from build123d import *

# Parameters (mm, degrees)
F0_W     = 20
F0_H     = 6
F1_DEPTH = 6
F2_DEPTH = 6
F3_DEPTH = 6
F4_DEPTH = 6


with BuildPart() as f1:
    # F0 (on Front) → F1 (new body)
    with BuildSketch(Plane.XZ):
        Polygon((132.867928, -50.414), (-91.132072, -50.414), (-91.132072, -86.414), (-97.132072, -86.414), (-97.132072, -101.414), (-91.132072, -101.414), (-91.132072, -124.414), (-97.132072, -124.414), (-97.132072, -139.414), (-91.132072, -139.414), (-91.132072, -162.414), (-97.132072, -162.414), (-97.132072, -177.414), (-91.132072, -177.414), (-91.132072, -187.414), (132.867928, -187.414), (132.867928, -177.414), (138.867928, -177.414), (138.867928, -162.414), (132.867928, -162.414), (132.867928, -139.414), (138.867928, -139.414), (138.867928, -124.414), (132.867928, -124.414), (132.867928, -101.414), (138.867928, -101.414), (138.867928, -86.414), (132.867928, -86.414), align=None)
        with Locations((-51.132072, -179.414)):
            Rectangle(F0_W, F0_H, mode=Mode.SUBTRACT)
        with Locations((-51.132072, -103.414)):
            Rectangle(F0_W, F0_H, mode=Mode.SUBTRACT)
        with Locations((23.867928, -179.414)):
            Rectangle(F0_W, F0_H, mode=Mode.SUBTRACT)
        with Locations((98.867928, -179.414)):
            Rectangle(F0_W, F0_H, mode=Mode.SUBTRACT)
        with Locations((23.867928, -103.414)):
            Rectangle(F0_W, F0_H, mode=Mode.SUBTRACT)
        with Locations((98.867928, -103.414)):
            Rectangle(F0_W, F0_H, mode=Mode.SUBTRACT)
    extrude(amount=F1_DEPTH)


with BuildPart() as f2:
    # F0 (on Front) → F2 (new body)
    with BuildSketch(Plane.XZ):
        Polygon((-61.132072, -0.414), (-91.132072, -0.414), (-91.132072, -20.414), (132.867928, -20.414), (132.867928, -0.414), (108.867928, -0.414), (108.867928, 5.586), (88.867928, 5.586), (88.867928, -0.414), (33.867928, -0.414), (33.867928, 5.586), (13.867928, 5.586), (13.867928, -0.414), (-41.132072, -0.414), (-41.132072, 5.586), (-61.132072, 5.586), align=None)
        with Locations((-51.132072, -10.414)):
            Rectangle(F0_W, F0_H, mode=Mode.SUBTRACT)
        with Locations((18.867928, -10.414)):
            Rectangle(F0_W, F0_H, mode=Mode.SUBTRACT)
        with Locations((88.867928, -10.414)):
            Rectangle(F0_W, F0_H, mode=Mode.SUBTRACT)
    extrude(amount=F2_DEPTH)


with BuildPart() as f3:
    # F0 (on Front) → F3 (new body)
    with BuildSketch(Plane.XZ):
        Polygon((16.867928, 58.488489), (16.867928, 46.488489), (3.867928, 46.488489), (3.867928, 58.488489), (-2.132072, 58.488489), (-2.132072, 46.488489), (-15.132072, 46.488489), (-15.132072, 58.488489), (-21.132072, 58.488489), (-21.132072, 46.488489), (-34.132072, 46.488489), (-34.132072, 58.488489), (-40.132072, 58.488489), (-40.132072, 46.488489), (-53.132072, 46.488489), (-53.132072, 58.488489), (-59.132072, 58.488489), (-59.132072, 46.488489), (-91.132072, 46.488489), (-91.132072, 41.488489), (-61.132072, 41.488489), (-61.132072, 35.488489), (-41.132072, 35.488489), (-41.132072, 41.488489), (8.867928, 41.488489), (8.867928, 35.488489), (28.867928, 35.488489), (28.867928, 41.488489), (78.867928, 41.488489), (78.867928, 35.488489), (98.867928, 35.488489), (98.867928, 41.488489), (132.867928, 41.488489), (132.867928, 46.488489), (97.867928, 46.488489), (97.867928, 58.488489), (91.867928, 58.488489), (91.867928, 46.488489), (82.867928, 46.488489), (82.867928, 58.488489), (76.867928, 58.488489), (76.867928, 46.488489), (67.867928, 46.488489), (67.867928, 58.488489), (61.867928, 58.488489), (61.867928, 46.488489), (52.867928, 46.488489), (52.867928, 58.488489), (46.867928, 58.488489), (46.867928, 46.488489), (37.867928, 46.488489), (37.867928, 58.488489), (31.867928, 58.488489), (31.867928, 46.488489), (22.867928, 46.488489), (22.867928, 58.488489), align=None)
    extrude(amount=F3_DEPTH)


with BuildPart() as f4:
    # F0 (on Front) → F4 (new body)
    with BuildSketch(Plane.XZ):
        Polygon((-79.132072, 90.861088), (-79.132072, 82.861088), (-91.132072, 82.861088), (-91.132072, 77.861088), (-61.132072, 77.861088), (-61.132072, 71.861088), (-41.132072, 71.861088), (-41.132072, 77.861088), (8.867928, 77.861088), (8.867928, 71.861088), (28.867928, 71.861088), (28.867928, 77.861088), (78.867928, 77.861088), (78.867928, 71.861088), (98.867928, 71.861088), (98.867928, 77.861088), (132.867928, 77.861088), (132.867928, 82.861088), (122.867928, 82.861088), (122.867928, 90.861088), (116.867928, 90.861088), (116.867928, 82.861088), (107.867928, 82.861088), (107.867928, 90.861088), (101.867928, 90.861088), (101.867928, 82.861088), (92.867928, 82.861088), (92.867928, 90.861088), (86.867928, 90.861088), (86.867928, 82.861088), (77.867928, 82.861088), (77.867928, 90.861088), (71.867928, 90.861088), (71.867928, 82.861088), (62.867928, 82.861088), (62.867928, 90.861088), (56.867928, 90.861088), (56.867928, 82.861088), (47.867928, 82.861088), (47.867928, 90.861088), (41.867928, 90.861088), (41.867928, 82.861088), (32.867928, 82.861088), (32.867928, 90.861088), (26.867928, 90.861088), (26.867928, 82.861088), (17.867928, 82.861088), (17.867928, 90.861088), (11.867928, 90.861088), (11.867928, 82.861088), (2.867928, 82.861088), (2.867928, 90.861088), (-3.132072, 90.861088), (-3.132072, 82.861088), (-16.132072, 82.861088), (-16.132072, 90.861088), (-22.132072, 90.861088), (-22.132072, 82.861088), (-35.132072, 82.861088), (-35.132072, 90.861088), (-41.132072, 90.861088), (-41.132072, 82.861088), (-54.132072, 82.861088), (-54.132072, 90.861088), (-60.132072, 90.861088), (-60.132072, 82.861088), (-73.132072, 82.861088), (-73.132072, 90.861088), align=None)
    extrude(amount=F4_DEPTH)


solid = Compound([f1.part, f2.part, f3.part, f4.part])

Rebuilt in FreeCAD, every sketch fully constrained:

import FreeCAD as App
import Part
import Sketcher
from FreeCAD import Vector
Q = App.Units.Quantity


def add_polygon(sketch, points):
    """Adds a closed chain of lines whose ends are joined by coincident constraints."""
    first, n = sketch.GeometryCount, len(points)
    for a, b in zip(points, points[1:] + points[:1]):
        sketch.addGeometry(Part.LineSegment(App.Vector(*a, 0), App.Vector(*b, 0)), False)
    for i in range(n):
        sketch.addConstraint(Sketcher.Constraint("Coincident", first + i, 2, first + (i + 1) % n, 1))

doc = App.newDocument("Part")
body = doc.addObject("PartDesign::Body", "Body")

sketch1 = body.newObject("Sketcher::SketchObject", "Sketch")
sketch1.AttachmentSupport = (doc.getObject("XZ_Plane"), [""])
sketch1.MapMode = "FlatFace"
add_polygon(sketch1, [(133, -50), (-91, -50), (-91, -86), (-97, -86), (-97, -101), (-91, -101), (-91, -124), (-97, -124), (-97, -139), (-91, -139), (-91, -162), (-97, -162), (-97, -177), (-91, -177), (-91, -187), (133, -187), (133, -177), (139, -177), (139, -162), (133, -162), (133, -139), (139, -139), (139, -124), (133, -124), (133, -101), (139, -101), (139, -86), (133, -86)])
add_polygon(sketch1, [(-41, -182), (-61, -182), (-61, -176), (-41, -176)])
add_polygon(sketch1, [(34, -182), (14, -182), (14, -176), (34, -176)])
add_polygon(sketch1, [(109, -182), (89, -182), (89, -176), (109, -176)])
add_polygon(sketch1, [(-41, -106), (-61, -106), (-61, -100), (-41, -100)])
add_polygon(sketch1, [(34, -106), (14, -106), (14, -100), (34, -100)])
add_polygon(sketch1, [(109, -106), (89, -106), (89, -100), (109, -100)])
sketch1.addConstraint([
    Sketcher.Constraint("Horizontal", 0),
    Sketcher.Constraint("Vertical", 1),
    Sketcher.Constraint("Horizontal", 2),
    Sketcher.Constraint("Vertical", 3),
    Sketcher.Constraint("Horizontal", 4),
    Sketcher.Constraint("Vertical", 5),
    Sketcher.Constraint("Horizontal", 6),
    Sketcher.Constraint("Vertical", 7),
    Sketcher.Constraint("Horizontal", 8),
    Sketcher.Constraint("Vertical", 9),
    Sketcher.Constraint("Horizontal", 10),
    Sketcher.Constraint("Vertical", 11),
    Sketcher.Constraint("Horizontal", 12),
    Sketcher.Constraint("Vertical", 13),
    Sketcher.Constraint("Horizontal", 14),
    Sketcher.Constraint("Vertical", 15),
    Sketcher.Constraint("Horizontal", 16),
    Sketcher.Constraint("Vertical", 17),
    Sketcher.Constraint("Horizontal", 18),
    Sketcher.Constraint("Vertical", 19),
    Sketcher.Constraint("Horizontal", 20),
    Sketcher.Constraint("Vertical", 21),
    Sketcher.Constraint("Horizontal", 22),
    Sketcher.Constraint("Vertical", 23),
    Sketcher.Constraint("Horizontal", 24),
    Sketcher.Constraint("Vertical", 25),
    Sketcher.Constraint("Horizontal", 26),
    Sketcher.Constraint("Vertical", 27),
    Sketcher.Constraint("Horizontal", 28),
    Sketcher.Constraint("Vertical", 29),
    Sketcher.Constraint("Horizontal", 30),
    Sketcher.Constraint("Vertical", 31),
    Sketcher.Constraint("Horizontal", 32),
    Sketcher.Constraint("Vertical", 33),
    Sketcher.Constraint("Horizontal", 34),
    Sketcher.Constraint("Vertical", 35),
    Sketcher.Constraint("Horizontal", 36),
    Sketcher.Constraint("Vertical", 37),
    Sketcher.Constraint("Horizontal", 38),
    Sketcher.Constraint("Vertical", 39),
    Sketcher.Constraint("Horizontal", 40),
    Sketcher.Constraint("Vertical", 41),
    Sketcher.Constraint("Horizontal", 42),
    Sketcher.Constraint("Vertical", 43),
    Sketcher.Constraint("Horizontal", 44),
    Sketcher.Constraint("Vertical", 45),
    Sketcher.Constraint("Horizontal", 46),
    Sketcher.Constraint("Vertical", 47),
    Sketcher.Constraint("Horizontal", 48),
    Sketcher.Constraint("Vertical", 49),
    Sketcher.Constraint("Horizontal", 50),
    Sketcher.Constraint("Vertical", 51),
    Sketcher.Constraint("Horizontal", 12, 2, 15, 2),
    Sketcher.Constraint("Horizontal", 10, 2, 17, 2),
    Sketcher.Constraint("Horizontal", 8, 2, 19, 2),
    Sketcher.Constraint("Horizontal", 6, 2, 21, 2),
    Sketcher.Constraint("Horizontal", 4, 2, 23, 2),
    Sketcher.Constraint("Horizontal", 2, 2, 25, 2),
    Sketcher.Constraint("Horizontal", 31, 2, 32, 2),
    Sketcher.Constraint("Horizontal", 30, 2, 33, 2),
    Sketcher.Constraint("Horizontal", 35, 2, 36, 2),
    Sketcher.Constraint("Horizontal", 34, 2, 37, 2),
    Sketcher.Constraint("Horizontal", 43, 2, 44, 2),
    Sketcher.Constraint("Horizontal", 42, 2, 45, 2),
    Sketcher.Constraint("Horizontal", 47, 2, 48, 2),
    Sketcher.Constraint("Horizontal", 46, 2, 49, 2),
    Sketcher.Constraint("Vertical", 1, 2, 4, 2),
    Sketcher.Constraint("Vertical", 3, 2, 6, 2),
    Sketcher.Constraint("Vertical", 5, 2, 8, 2),
    Sketcher.Constraint("Vertical", 7, 2, 10, 2),
    Sketcher.Constraint("Vertical", 9, 2, 12, 2),
    Sketcher.Constraint("Vertical", 15, 2, 18, 2),
    Sketcher.Constraint("Vertical", 17, 2, 20, 2),
    Sketcher.Constraint("Vertical", 19, 2, 22, 2),
    Sketcher.Constraint("Vertical", 21, 2, 24, 2),
    Sketcher.Constraint("Vertical", 23, 2, 26, 2),
    Sketcher.Constraint("Vertical", 29, 2, 40, 2),
    Sketcher.Constraint("Vertical", 31, 2, 42, 2),
    Sketcher.Constraint("Vertical", 33, 2, 44, 2),
    Sketcher.Constraint("Vertical", 35, 2, 46, 2),
    Sketcher.Constraint("Vertical", 37, 2, 48, 2),
    Sketcher.Constraint("Vertical", 39, 2, 50, 2),
    Sketcher.Constraint("Equal", 12, 16),
    Sketcher.Constraint("Equal", 30, 32),
    Sketcher.Constraint("Equal", 34, 36),
    Sketcher.Constraint("Equal", 3, 7),
    Sketcher.Constraint("Equal", 5, 9),
    Sketcher.Constraint("Equal", 7, 11),
    Sketcher.Constraint("Equal", 26, 29),
    Sketcher.Constraint("Equal", 39, 41),
    Sketcher.Constraint("DistanceX", 0, 2, 0, 1, Q("224 mm")),
    Sketcher.Constraint("DistanceX", 2, 2, 2, 1, Q("6 mm")),
    Sketcher.Constraint("DistanceX", 28, 2, 28, 1, Q("20 mm")),
    Sketcher.Constraint("DistanceY", 1, 2, 1, 1, Q("36 mm")),
    Sketcher.Constraint("DistanceY", 3, 2, 3, 1, Q("15 mm")),
    Sketcher.Constraint("DistanceY", 5, 2, 5, 1, Q("23 mm")),
    Sketcher.Constraint("DistanceY", 13, 2, 13, 1, Q("10 mm")),
    Sketcher.Constraint("DistanceX", 12, 2, 28, 2, Q("30 mm")),
    Sketcher.Constraint("DistanceY", 28, 2, 12, 2, Q("5 mm")),
    Sketcher.Constraint("DistanceX", 31, 2, 32, 2, Q("55 mm")),
    Sketcher.Constraint("DistanceX", 36, 2, 14, 2, Q("44 mm")),
    Sketcher.Constraint("DistanceY", 40, 2, 4, 2, Q("5 mm")),
    Sketcher.Constraint("DistanceY", 0, 2, -1, 1, Q("50.414 mm")),
    Sketcher.Constraint("DistanceX", 0, 2, -1, 1, Q("91.132072 mm")),
])
pad1 = body.newObject("PartDesign::Pad", "Pad")
pad1.Profile = sketch1
pad1.Length = 6
body2 = doc.addObject("PartDesign::Body", "Body001")

sketch2 = body2.newObject("Sketcher::SketchObject", "Sketch001")
sketch2.AttachmentSupport = (doc.getObject("XZ_Plane001"), [""])
sketch2.MapMode = "FlatFace"
add_polygon(sketch2, [(-61, 0), (-91, 0), (-91, -20), (133, -20), (133, 0), (109, 0), (109, 6), (89, 6), (89, 0), (34, 0), (34, 6), (14, 6), (14, 0), (-41, 0), (-41, 6), (-61, 6)])
add_polygon(sketch2, [(-41, -13), (-61, -13), (-61, -7), (-41, -7)])
add_polygon(sketch2, [(29, -13), (9, -13), (9, -7), (29, -7)])
add_polygon(sketch2, [(99, -13), (79, -13), (79, -7), (99, -7)])
sketch2.addConstraint([
    Sketcher.Constraint("Horizontal", 0),
    Sketcher.Constraint("Vertical", 1),
    Sketcher.Constraint("Horizontal", 2),
    Sketcher.Constraint("Vertical", 3),
    Sketcher.Constraint("Horizontal", 4),
    Sketcher.Constraint("Vertical", 5),
    Sketcher.Constraint("Horizontal", 6),
    Sketcher.Constraint("Vertical", 7),
    Sketcher.Constraint("Horizontal", 8),
    Sketcher.Constraint("Vertical", 9),
    Sketcher.Constraint("Horizontal", 10),
    Sketcher.Constraint("Vertical", 11),
    Sketcher.Constraint("Horizontal", 12),
    Sketcher.Constraint("Vertical", 13),
    Sketcher.Constraint("Horizontal", 14),
    Sketcher.Constraint("Vertical", 15),
    Sketcher.Constraint("Horizontal", 16),
    Sketcher.Constraint("Vertical", 17),
    Sketcher.Constraint("Horizontal", 18),
    Sketcher.Constraint("Vertical", 19),
    Sketcher.Constraint("Horizontal", 20),
    Sketcher.Constraint("Vertical", 21),
    Sketcher.Constraint("Horizontal", 22),
    Sketcher.Constraint("Vertical", 23),
    Sketcher.Constraint("Horizontal", 24),
    Sketcher.Constraint("Vertical", 25),
    Sketcher.Constraint("Horizontal", 26),
    Sketcher.Constraint("Vertical", 27),
    Sketcher.Constraint("Horizontal", 0, 2, 3, 2),
    Sketcher.Constraint("Horizontal", 4, 2, 7, 2),
    Sketcher.Constraint("Horizontal", 6, 2, 9, 2),
    Sketcher.Constraint("Horizontal", 8, 2, 11, 2),
    Sketcher.Constraint("Horizontal", 10, 2, 13, 2),
    Sketcher.Constraint("Horizontal", 19, 2, 20, 2),
    Sketcher.Constraint("Horizontal", 18, 2, 21, 2),
    Sketcher.Constraint("Horizontal", 23, 2, 24, 2),
    Sketcher.Constraint("Horizontal", 22, 2, 25, 2),
    Sketcher.Constraint("Vertical", 15, 2, 16, 2),
    Sketcher.Constraint("Vertical", 13, 2, 18, 2),
    Sketcher.Constraint("Equal", 6, 10),
    Sketcher.Constraint("Equal", 8, 12),
    Sketcher.Constraint("Equal", 10, 14),
    Sketcher.Constraint("Equal", 18, 20),
    Sketcher.Constraint("Equal", 22, 24),
    Sketcher.Constraint("Equal", 26, 1),
    Sketcher.Constraint("Equal", 15, 17),
    Sketcher.Constraint("DistanceX", 0, 2, 0, 1, Q("30 mm")),
    Sketcher.Constraint("DistanceX", 2, 1, 2, 2, Q("224 mm")),
    Sketcher.Constraint("DistanceX", 4, 2, 4, 1, Q("24 mm")),
    Sketcher.Constraint("DistanceX", 6, 2, 6, 1, Q("20 mm")),
    Sketcher.Constraint("DistanceY", 5, 1, 5, 2, Q("6 mm")),
    Sketcher.Constraint("DistanceY", 16, 2, 15, 2, Q("13 mm")),
    Sketcher.Constraint("DistanceX", 20, 2, 11, 2, Q("5 mm")),
    Sketcher.Constraint("DistanceX", 24, 2, 7, 2, Q("10 mm")),
    Sketcher.Constraint("DistanceY", 0, 2, -1, 1, Q("0.414 mm")),
    Sketcher.Constraint("DistanceX", 0, 2, -1, 1, Q("91.132072 mm")),
])
pad2 = body2.newObject("PartDesign::Pad", "Pad001")
pad2.Profile = sketch2
pad2.Length = 6
body3 = doc.addObject("PartDesign::Body", "Body002")

sketch3 = body3.newObject("Sketcher::SketchObject", "Sketch002")
sketch3.AttachmentSupport = (doc.getObject("XZ_Plane002"), [""])
sketch3.MapMode = "FlatFace"
add_polygon(sketch3, [(17, 58), (17, 46), (4, 46), (4, 58), (-2, 58), (-2, 46), (-15, 46), (-15, 58), (-21, 58), (-21, 46), (-34, 46), (-34, 58), (-40, 58), (-40, 46), (-53, 46), (-53, 58), (-59, 58), (-59, 46), (-91, 46), (-91, 41), (-61, 41), (-61, 35), (-41, 35), (-41, 41), (9, 41), (9, 35), (29, 35), (29, 41), (79, 41), (79, 35), (99, 35), (99, 41), (133, 41), (133, 46), (98, 46), (98, 58), (92, 58), (92, 46), (83, 46), (83, 58), (77, 58), (77, 46), (68, 46), (68, 58), (62, 58), (62, 46), (53, 46), (53, 58), (47, 58), (47, 46), (38, 46), (38, 58), (32, 58), (32, 46), (23, 46), (23, 58)])
sketch3.addConstraint([
    Sketcher.Constraint("Vertical", 0),
    Sketcher.Constraint("Horizontal", 1),
    Sketcher.Constraint("Vertical", 2),
    Sketcher.Constraint("Horizontal", 3),
    Sketcher.Constraint("Vertical", 4),
    Sketcher.Constraint("Horizontal", 5),
    Sketcher.Constraint("Vertical", 6),
    Sketcher.Constraint("Horizontal", 7),
    Sketcher.Constraint("Vertical", 8),
    Sketcher.Constraint("Horizontal", 9),
    Sketcher.Constraint("Vertical", 10),
    Sketcher.Constraint("Horizontal", 11),
    Sketcher.Constraint("Vertical", 12),
    Sketcher.Constraint("Horizontal", 13),
    Sketcher.Constraint("Vertical", 14),
    Sketcher.Constraint("Horizontal", 15),
    Sketcher.Constraint("Vertical", 16),
    Sketcher.Constraint("Horizontal", 17),
    Sketcher.Constraint("Vertical", 18),
    Sketcher.Constraint("Horizontal", 19),
    Sketcher.Constraint("Vertical", 20),
    Sketcher.Constraint("Horizontal", 21),
    Sketcher.Constraint("Vertical", 22),
    Sketcher.Constraint("Horizontal", 23),
    Sketcher.Constraint("Vertical", 24),
    Sketcher.Constraint("Horizontal", 25),
    Sketcher.Constraint("Vertical", 26),
    Sketcher.Constraint("Horizontal", 27),
    Sketcher.Constraint("Vertical", 28),
    Sketcher.Constraint("Horizontal", 29),
    Sketcher.Constraint("Vertical", 30),
    Sketcher.Constraint("Horizontal", 31),
    Sketcher.Constraint("Vertical", 32),
    Sketcher.Constraint("Horizontal", 33),
    Sketcher.Constraint("Vertical", 34),
    Sketcher.Constraint("Horizontal", 35),
    Sketcher.Constraint("Vertical", 36),
    Sketcher.Constraint("Horizontal", 37),
    Sketcher.Constraint("Vertical", 38),
    Sketcher.Constraint("Horizontal", 39),
    Sketcher.Constraint("Vertical", 40),
    Sketcher.Constraint("Horizontal", 41),
    Sketcher.Constraint("Vertical", 42),
    Sketcher.Constraint("Horizontal", 43),
    Sketcher.Constraint("Vertical", 44),
    Sketcher.Constraint("Horizontal", 45),
    Sketcher.Constraint("Vertical", 46),
    Sketcher.Constraint("Horizontal", 47),
    Sketcher.Constraint("Vertical", 48),
    Sketcher.Constraint("Horizontal", 49),
    Sketcher.Constraint("Vertical", 50),
    Sketcher.Constraint("Horizontal", 51),
    Sketcher.Constraint("Vertical", 52),
    Sketcher.Constraint("Horizontal", 53),
    Sketcher.Constraint("Vertical", 54),
    Sketcher.Constraint("Horizontal", 55),
    Sketcher.Constraint("Horizontal", 1, 2, 4, 2),
    Sketcher.Constraint("Horizontal", 3, 2, 6, 2),
    Sketcher.Constraint("Horizontal", 5, 2, 8, 2),
    Sketcher.Constraint("Horizontal", 7, 2, 10, 2),
    Sketcher.Constraint("Horizontal", 9, 2, 12, 2),
    Sketcher.Constraint("Horizontal", 11, 2, 14, 2),
    Sketcher.Constraint("Horizontal", 13, 2, 16, 2),
    Sketcher.Constraint("Horizontal", 19, 2, 22, 2),
    Sketcher.Constraint("Horizontal", 21, 2, 24, 2),
    Sketcher.Constraint("Horizontal", 23, 2, 26, 2),
    Sketcher.Constraint("Horizontal", 25, 2, 28, 2),
    Sketcher.Constraint("Horizontal", 27, 2, 30, 2),
    Sketcher.Constraint("Horizontal", 17, 2, 32, 2),
    Sketcher.Constraint("Horizontal", 15, 2, 34, 2),
    Sketcher.Constraint("Horizontal", 33, 2, 36, 2),
    Sketcher.Constraint("Horizontal", 35, 2, 38, 2),
    Sketcher.Constraint("Horizontal", 37, 2, 40, 2),
    Sketcher.Constraint("Horizontal", 39, 2, 42, 2),
    Sketcher.Constraint("Horizontal", 41, 2, 44, 2),
    Sketcher.Constraint("Horizontal", 43, 2, 46, 2),
    Sketcher.Constraint("Horizontal", 45, 2, 48, 2),
    Sketcher.Constraint("Horizontal", 47, 2, 50, 2),
    Sketcher.Constraint("Horizontal", 49, 2, 52, 2),
    Sketcher.Constraint("Horizontal", 51, 2, 54, 2),
    Sketcher.Constraint("Equal", 1, 5),
    Sketcher.Constraint("Equal", 3, 7),
    Sketcher.Constraint("Equal", 5, 9),
    Sketcher.Constraint("Equal", 7, 11),
    Sketcher.Constraint("Equal", 9, 13),
    Sketcher.Constraint("Equal", 11, 15),
    Sketcher.Constraint("Equal", 21, 25),
    Sketcher.Constraint("Equal", 23, 27),
    Sketcher.Constraint("Equal", 25, 29),
    Sketcher.Constraint("Equal", 15, 35),
    Sketcher.Constraint("Equal", 35, 39),
    Sketcher.Constraint("Equal", 37, 41),
    Sketcher.Constraint("Equal", 39, 43),
    Sketcher.Constraint("Equal", 41, 45),
    Sketcher.Constraint("Equal", 43, 47),
    Sketcher.Constraint("Equal", 45, 49),
    Sketcher.Constraint("Equal", 47, 51),
    Sketcher.Constraint("Equal", 49, 53),
    Sketcher.Constraint("Equal", 51, 55),
    Sketcher.Constraint("Equal", 55, 20),
    Sketcher.Constraint("DistanceX", 1, 2, 1, 1, Q("13 mm")),
    Sketcher.Constraint("DistanceX", 3, 2, 3, 1, Q("6 mm")),
    Sketcher.Constraint("DistanceX", 17, 2, 17, 1, Q("32 mm")),
    Sketcher.Constraint("DistanceX", 19, 1, 19, 2, Q("30 mm")),
    Sketcher.Constraint("DistanceX", 21, 1, 21, 2, Q("20 mm")),
    Sketcher.Constraint("DistanceX", 23, 1, 23, 2, Q("50 mm")),
    Sketcher.Constraint("DistanceX", 31, 1, 31, 2, Q("34 mm")),
    Sketcher.Constraint("DistanceX", 33, 2, 33, 1, Q("35 mm")),
    Sketcher.Constraint("DistanceY", 0, 2, 0, 1, Q("12 mm")),
    Sketcher.Constraint("DistanceY", 18, 2, 18, 1, Q("5 mm")),
    Sketcher.Constraint("DistanceY", -1, 1, 0, 2, Q("46.488489 mm")),
    Sketcher.Constraint("DistanceX", -1, 1, 1, 2, Q("3.867928 mm")),
])
pad3 = body3.newObject("PartDesign::Pad", "Pad002")
pad3.Profile = sketch3
pad3.Length = 6
body4 = doc.addObject("PartDesign::Body", "Body003")

sketch4 = body4.newObject("Sketcher::SketchObject", "Sketch003")
sketch4.AttachmentSupport = (doc.getObject("XZ_Plane003"), [""])
sketch4.MapMode = "FlatFace"
add_polygon(sketch4, [(-79, 91), (-79, 83), (-91, 83), (-91, 78), (-61, 78), (-61, 72), (-41, 72), (-41, 78), (9, 78), (9, 72), (29, 72), (29, 78), (79, 78), (79, 72), (99, 72), (99, 78), (133, 78), (133, 83), (123, 83), (123, 91), (117, 91), (117, 83), (108, 83), (108, 91), (102, 91), (102, 83), (93, 83), (93, 91), (87, 91), (87, 83), (78, 83), (78, 91), (72, 91), (72, 83), (63, 83), (63, 91), (57, 91), (57, 83), (48, 83), (48, 91), (42, 91), (42, 83), (33, 83), (33, 91), (27, 91), (27, 83), (18, 83), (18, 91), (12, 91), (12, 83), (3, 83), (3, 91), (-3, 91), (-3, 83), (-16, 83), (-16, 91), (-22, 91), (-22, 83), (-35, 83), (-35, 91), (-41, 91), (-41, 83), (-54, 83), (-54, 91), (-60, 91), (-60, 83), (-73, 83), (-73, 91)])
sketch4.addConstraint([
    Sketcher.Constraint("Vertical", 0),
    Sketcher.Constraint("Horizontal", 1),
    Sketcher.Constraint("Vertical", 2),
    Sketcher.Constraint("Horizontal", 3),
    Sketcher.Constraint("Vertical", 4),
    Sketcher.Constraint("Horizontal", 5),
    Sketcher.Constraint("Vertical", 6),
    Sketcher.Constraint("Horizontal", 7),
    Sketcher.Constraint("Vertical", 8),
    Sketcher.Constraint("Horizontal", 9),
    Sketcher.Constraint("Vertical", 10),
    Sketcher.Constraint("Horizontal", 11),
    Sketcher.Constraint("Vertical", 12),
    Sketcher.Constraint("Horizontal", 13),
    Sketcher.Constraint("Vertical", 14),
    Sketcher.Constraint("Horizontal", 15),
    Sketcher.Constraint("Vertical", 16),
    Sketcher.Constraint("Horizontal", 17),
    Sketcher.Constraint("Vertical", 18),
    Sketcher.Constraint("Horizontal", 19),
    Sketcher.Constraint("Vertical", 20),
    Sketcher.Constraint("Horizontal", 21),
    Sketcher.Constraint("Vertical", 22),
    Sketcher.Constraint("Horizontal", 23),
    Sketcher.Constraint("Vertical", 24),
    Sketcher.Constraint("Horizontal", 25),
    Sketcher.Constraint("Vertical", 26),
    Sketcher.Constraint("Horizontal", 27),
    Sketcher.Constraint("Vertical", 28),
    Sketcher.Constraint("Horizontal", 29),
    Sketcher.Constraint("Vertical", 30),
    Sketcher.Constraint("Horizontal", 31),
    Sketcher.Constraint("Vertical", 32),
    Sketcher.Constraint("Horizontal", 33),
    Sketcher.Constraint("Vertical", 34),
    Sketcher.Constraint("Horizontal", 35),
    Sketcher.Constraint("Vertical", 36),
    Sketcher.Constraint("Horizontal", 37),
    Sketcher.Constraint("Vertical", 38),
    Sketcher.Constraint("Horizontal", 39),
    Sketcher.Constraint("Vertical", 40),
    Sketcher.Constraint("Horizontal", 41),
    Sketcher.Constraint("Vertical", 42),
    Sketcher.Constraint("Horizontal", 43),
    Sketcher.Constraint("Vertical", 44),
    Sketcher.Constraint("Horizontal", 45),
    Sketcher.Constraint("Vertical", 46),
    Sketcher.Constraint("Horizontal", 47),
    Sketcher.Constraint("Vertical", 48),
    Sketcher.Constraint("Horizontal", 49),
    Sketcher.Constraint("Vertical", 50),
    Sketcher.Constraint("Horizontal", 51),
    Sketcher.Constraint("Vertical", 52),
    Sketcher.Constraint("Horizontal", 53),
    Sketcher.Constraint("Vertical", 54),
    Sketcher.Constraint("Horizontal", 55),
    Sketcher.Constraint("Vertical", 56),
    Sketcher.Constraint("Horizontal", 57),
    Sketcher.Constraint("Vertical", 58),
    Sketcher.Constraint("Horizontal", 59),
    Sketcher.Constraint("Vertical", 60),
    Sketcher.Constraint("Horizontal", 61),
    Sketcher.Constraint("Vertical", 62),
    Sketcher.Constraint("Horizontal", 63),
    Sketcher.Constraint("Vertical", 64),
    Sketcher.Constraint("Horizontal", 65),
    Sketcher.Constraint("Vertical", 66),
    Sketcher.Constraint("Horizontal", 67),
    Sketcher.Constraint("Horizontal", 3, 2, 6, 2),
    Sketcher.Constraint("Horizontal", 5, 2, 8, 2),
    Sketcher.Constraint("Horizontal", 7, 2, 10, 2),
    Sketcher.Constraint("Horizontal", 9, 2, 12, 2),
    Sketcher.Constraint("Horizontal", 11, 2, 14, 2),
    Sketcher.Constraint("Horizontal", 1, 2, 16, 2),
    Sketcher.Constraint("Horizontal", 17, 2, 20, 2),
    Sketcher.Constraint("Horizontal", 19, 2, 22, 2),
    Sketcher.Constraint("Horizontal", 21, 2, 24, 2),
    Sketcher.Constraint("Horizontal", 23, 2, 26, 2),
    Sketcher.Constraint("Horizontal", 25, 2, 28, 2),
    Sketcher.Constraint("Horizontal", 27, 2, 30, 2),
    Sketcher.Constraint("Horizontal", 29, 2, 32, 2),
    Sketcher.Constraint("Horizontal", 31, 2, 34, 2),
    Sketcher.Constraint("Horizontal", 33, 2, 36, 2),
    Sketcher.Constraint("Horizontal", 35, 2, 38, 2),
    Sketcher.Constraint("Horizontal", 37, 2, 40, 2),
    Sketcher.Constraint("Horizontal", 39, 2, 42, 2),
    Sketcher.Constraint("Horizontal", 41, 2, 44, 2),
    Sketcher.Constraint("Horizontal", 43, 2, 46, 2),
    Sketcher.Constraint("Horizontal", 45, 2, 48, 2),
    Sketcher.Constraint("Horizontal", 47, 2, 50, 2),
    Sketcher.Constraint("Horizontal", 49, 2, 52, 2),
    Sketcher.Constraint("Horizontal", 51, 2, 54, 2),
    Sketcher.Constraint("Horizontal", 53, 2, 56, 2),
    Sketcher.Constraint("Horizontal", 55, 2, 58, 2),
    Sketcher.Constraint("Horizontal", 57, 2, 60, 2),
    Sketcher.Constraint("Horizontal", 59, 2, 62, 2),
    Sketcher.Constraint("Horizontal", 61, 2, 64, 2),
    Sketcher.Constraint("Horizontal", 63, 2, 66, 2),
    Sketcher.Constraint("Vertical", 6, 2, 59, 2),
    Sketcher.Constraint("Equal", 5, 9),
    Sketcher.Constraint("Equal", 7, 11),
    Sketcher.Constraint("Equal", 9, 13),
    Sketcher.Constraint("Equal", 19, 23),
    Sketcher.Constraint("Equal", 21, 25),
    Sketcher.Constraint("Equal", 23, 27),
    Sketcher.Constraint("Equal", 25, 29),
    Sketcher.Constraint("Equal", 27, 31),
    Sketcher.Constraint("Equal", 29, 33),
    Sketcher.Constraint("Equal", 31, 35),
    Sketcher.Constraint("Equal", 33, 37),
    Sketcher.Constraint("Equal", 35, 39),
    Sketcher.Constraint("Equal", 37, 41),
    Sketcher.Constraint("Equal", 39, 43),
    Sketcher.Constraint("Equal", 41, 45),
    Sketcher.Constraint("Equal", 43, 47),
    Sketcher.Constraint("Equal", 45, 49),
    Sketcher.Constraint("Equal", 47, 51),
    Sketcher.Constraint("Equal", 51, 55),
    Sketcher.Constraint("Equal", 53, 57),
    Sketcher.Constraint("Equal", 55, 59),
    Sketcher.Constraint("Equal", 57, 61),
    Sketcher.Constraint("Equal", 59, 63),
    Sketcher.Constraint("Equal", 61, 65),
    Sketcher.Constraint("Equal", 63, 67),
    Sketcher.Constraint("Equal", 67, 4),
    Sketcher.Constraint("DistanceX", 1, 2, 1, 1, Q("12 mm")),
    Sketcher.Constraint("DistanceX", 3, 1, 3, 2, Q("30 mm")),
    Sketcher.Constraint("DistanceX", 5, 1, 5, 2, Q("20 mm")),
    Sketcher.Constraint("DistanceX", 7, 1, 7, 2, Q("50 mm")),
    Sketcher.Constraint("DistanceX", 15, 1, 15, 2, Q("34 mm")),
    Sketcher.Constraint("DistanceX", 17, 2, 17, 1, Q("10 mm")),
    Sketcher.Constraint("DistanceX", 19, 2, 19, 1, Q("6 mm")),
    Sketcher.Constraint("DistanceY", 0, 2, 0, 1, Q("8 mm")),
    Sketcher.Constraint("DistanceY", 2, 2, 2, 1, Q("5 mm")),
    Sketcher.Constraint("DistanceX", 0, 2, -1, 1, Q("79.132072 mm")),
    Sketcher.Constraint("DistanceY", -1, 1, 0, 2, Q("82.861088 mm")),
])
pad4 = body4.newObject("PartDesign::Pad", "Pad003")
pad4.Profile = sketch4
pad4.Length = 6

doc.recompute()
